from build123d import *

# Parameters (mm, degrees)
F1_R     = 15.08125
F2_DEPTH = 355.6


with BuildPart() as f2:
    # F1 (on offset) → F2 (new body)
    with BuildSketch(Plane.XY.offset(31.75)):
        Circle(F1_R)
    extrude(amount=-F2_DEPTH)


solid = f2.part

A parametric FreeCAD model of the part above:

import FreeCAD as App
import Part
import Sketcher
Q = App.Units.Quantity

doc = App.newDocument("Part")
params = doc.addObject("Spreadsheet::Sheet", "Params")
for row, (alias, value) in enumerate([
    ("sketch1_diameter", "1.1875 in"),
    ("pad1_length", "14 in"),
], start=1):
    params.set(f"A{row}", alias)
    params.set(f"B{row}", "=" + value)
    params.setAlias(f"B{row}", alias)

body = doc.addObject("PartDesign::Body", "Body")

# Sketch on XY plane
sketch1 = body.newObject("Sketcher::SketchObject", "Sketch")
sketch1.AttachmentSupport = (doc.getObject("XY_Plane"), [""])
sketch1.MapMode = "FlatFace"
sketch1.AttachmentOffset = App.Placement(App.Vector(0, 0, 1.25 * 25.4), App.Rotation())
sketch1.addGeometry(Part.Circle(App.Vector(0, 0, 0), App.Vector(0, 0, 1), 15.08125), False)
sketch1.addConstraint(Sketcher.Constraint("Coincident", 0, 3, -1, 1))
sketch1.addConstraint(Sketcher.Constraint("Diameter", 0, Q("1.1875 in")))
sketch1.setExpression("Constraints[1]", "Params.sketch1_diameter")
pad1 = body.newObject("PartDesign::Pad", "Pad")
pad1.Profile = sketch1
pad1.setExpression("Length", "Params.pad1_length")
pad1.Reversed = True

doc.recompute()
